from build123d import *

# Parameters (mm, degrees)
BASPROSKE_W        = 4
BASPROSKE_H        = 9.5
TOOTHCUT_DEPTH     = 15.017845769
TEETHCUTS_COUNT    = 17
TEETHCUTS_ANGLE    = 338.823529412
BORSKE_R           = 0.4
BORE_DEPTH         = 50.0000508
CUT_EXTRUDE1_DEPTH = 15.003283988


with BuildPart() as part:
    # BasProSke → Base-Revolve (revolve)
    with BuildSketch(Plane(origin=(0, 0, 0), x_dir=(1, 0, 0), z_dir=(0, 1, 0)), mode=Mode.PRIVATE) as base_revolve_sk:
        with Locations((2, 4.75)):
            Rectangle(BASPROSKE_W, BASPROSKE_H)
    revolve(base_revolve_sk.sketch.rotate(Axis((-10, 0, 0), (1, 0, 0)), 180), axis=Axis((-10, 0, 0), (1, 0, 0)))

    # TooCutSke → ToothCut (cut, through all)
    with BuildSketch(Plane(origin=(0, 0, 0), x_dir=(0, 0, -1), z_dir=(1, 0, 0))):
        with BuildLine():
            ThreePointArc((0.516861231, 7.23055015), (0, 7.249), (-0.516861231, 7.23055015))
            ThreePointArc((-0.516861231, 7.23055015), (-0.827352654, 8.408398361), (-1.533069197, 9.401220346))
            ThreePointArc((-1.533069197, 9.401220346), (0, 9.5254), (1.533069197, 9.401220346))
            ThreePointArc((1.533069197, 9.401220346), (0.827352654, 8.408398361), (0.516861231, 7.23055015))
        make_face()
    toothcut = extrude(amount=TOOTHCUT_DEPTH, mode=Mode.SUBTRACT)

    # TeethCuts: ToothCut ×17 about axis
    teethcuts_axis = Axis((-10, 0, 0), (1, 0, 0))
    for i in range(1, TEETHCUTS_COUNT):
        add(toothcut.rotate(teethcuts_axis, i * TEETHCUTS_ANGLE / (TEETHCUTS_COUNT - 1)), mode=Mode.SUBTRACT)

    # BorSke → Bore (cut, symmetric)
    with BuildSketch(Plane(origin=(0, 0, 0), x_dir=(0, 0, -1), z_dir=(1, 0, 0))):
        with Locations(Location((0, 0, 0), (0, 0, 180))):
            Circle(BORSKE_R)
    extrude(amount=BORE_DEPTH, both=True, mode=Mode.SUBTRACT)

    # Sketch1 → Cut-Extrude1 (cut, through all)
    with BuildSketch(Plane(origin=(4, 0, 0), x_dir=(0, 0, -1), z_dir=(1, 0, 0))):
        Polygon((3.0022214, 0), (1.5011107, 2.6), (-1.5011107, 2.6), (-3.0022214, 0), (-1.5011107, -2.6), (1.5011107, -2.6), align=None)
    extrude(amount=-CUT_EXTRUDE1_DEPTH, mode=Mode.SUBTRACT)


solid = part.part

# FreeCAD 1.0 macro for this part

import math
import FreeCAD as App
import Part
import Sketcher

V = App.Vector
Q = App.Units.Quantity


def add_polygon(sketch, points):
    """Adds a closed chain of lines whose ends are joined by coincident constraints."""
    first, n = sketch.GeometryCount, len(points)
    for a, b in zip(points, points[1:] + points[:1]):
        sketch.addGeometry(Part.LineSegment(App.Vector(*a, 0), App.Vector(*b, 0)), False)
    for i in range(n):
        sketch.addConstraint(Sketcher.Constraint("Coincident", first + i, 2, first + (i + 1) % n, 1))

doc = App.newDocument("Part")
body = doc.addObject("PartDesign::Body", "Body")

# Sketch on XZ plane
sketch1 = body.newObject("Sketcher::SketchObject", "Sketch")
sketch1.AttachmentSupport = (doc.getObject("XZ_Plane"), [""])
sketch1.MapMode = "FlatFace"
add_polygon(sketch1, [(0, -9.5), (0, 0), (4, 0), (4, -9.5)])  # lines 0-3
sketch1.addConstraint(Sketcher.Constraint("Vertical", 0))
sketch1.addConstraint(Sketcher.Constraint("Horizontal", 1))
sketch1.addConstraint(Sketcher.Constraint("Vertical", 2))
sketch1.addConstraint(Sketcher.Constraint("Horizontal", 3))
sketch1.addConstraint(Sketcher.Constraint("Coincident", 0, 2, -1, 1))
sketch1.addConstraint(Sketcher.Constraint("DistanceX", 1, 1, 1, 2, 4.0))
sketch1.addConstraint(Sketcher.Constraint("DistanceY", 0, 1, 0, 2, 9.5))
revolution = body.newObject("PartDesign::Revolution", "Revolution")
revolution.Profile = sketch1
revolution.ReferenceAxis = (sketch1, ["H_Axis"])
revolution.Angle = 360

# Sketch on YZ plane
sketch2 = body.newObject("Sketcher::SketchObject", "Sketch001")
sketch2.AttachmentSupport = (doc.getObject("YZ_Plane"), [""])
sketch2.MapMode = "FlatFace"
sketch2.addGeometry(Part.ArcOfCircle(Part.Circle(V(0, 0, 0), V(0, 0, 1), 7.2), math.radians(-4.09), math.radians(4.09)), False)
sketch2.addGeometry(Part.ArcOfCircle(Part.Circle(V(7, -3.9, 0), V(0, 0, 1), 3.4), math.radians(44), math.radians(86)), False)
sketch2.addGeometry(Part.ArcOfCircle(Part.Circle(V(0, 0, 0), V(0, 0, 1), 9.5), math.radians(-9.26), math.radians(9.26)), False)
sketch2.addGeometry(Part.ArcOfCircle(Part.Circle(V(7, 3.9, 0), V(0, 0, 1), 3.4), math.radians(-86), math.radians(-44)), False)
sketch2.addConstraint(Sketcher.Constraint("Coincident", 0, 1, 1, 2))
sketch2.addConstraint(Sketcher.Constraint("Coincident", 1, 1, 2, 1))
sketch2.addConstraint(Sketcher.Constraint("Coincident", 2, 2, 3, 2))
sketch2.addConstraint(Sketcher.Constraint("Coincident", 3, 1, 0, 2))
sketch2.addConstraint(Sketcher.Constraint("Coincident", 0, 3, -1, 1))
sketch2.addConstraint(Sketcher.Constraint("Coincident", 2, 3, -1, 1))
sketch2.addConstraint(Sketcher.Constraint("Equal", 1, 3))
sketch2.addConstraint(Sketcher.Constraint("Symmetric", 1, 3, 3, 3, -1))
sketch2.addConstraint(Sketcher.Constraint("Radius", 1, 3.4))
sketch2.addConstraint(Sketcher.Constraint("Radius", 0, 7.249))
sketch2.addConstraint(Sketcher.Constraint("Radius", 2, 9.5254))
sketch2.addConstraint(Sketcher.Constraint("DistanceX", -1, 1, 0, 1, 7.23055))
sketch2.addConstraint(Sketcher.Constraint("DistanceX", -1, 1, 1, 1, 9.40122))
pocket1 = body.newObject("PartDesign::Pocket", "Pocket")
pocket1.Profile = sketch2
pocket1.Type = "ThroughAll"
pocket1.Reversed = True
doc.recompute()

polarpattern = body.newObject("PartDesign::PolarPattern", "PolarPattern")
polarpattern.Originals = [pocket1]
polarpattern.Axis = (doc.getObject("X_Axis"), [""])
polarpattern.Angle = 360
polarpattern.Occurrences = 17
body.Tip = polarpattern

# Sketch on YZ plane
sketch3 = body.newObject("Sketcher::SketchObject", "Sketch002")
sketch3.AttachmentSupport = (doc.getObject("YZ_Plane"), [""])
sketch3.MapMode = "FlatFace"
sketch3.addGeometry(Part.Circle(V(0, 0, 0), V(0, 0, 1), 0.4), False)
sketch3.addConstraint(Sketcher.Constraint("Coincident", 0, 3, -1, 1))
sketch3.addConstraint(Sketcher.Constraint("Diameter", 0, 0.8))
pocket2 = body.newObject("PartDesign::Pocket", "Pocket001")
pocket2.Profile = sketch3
pocket2.Length = 100.000102
pocket2.Midplane = True

# Sketch on YZ plane
sketch4 = body.newObject("Sketcher::SketchObject", "Sketch003")
sketch4.AttachmentSupport = (doc.getObject("YZ_Plane"), [""])
sketch4.MapMode = "FlatFace"
sketch4.AttachmentOffset = App.Placement(V(0, 0, 4), App.Rotation())
add_polygon(sketch4, [(0, -3), (2.6, -1.5), (2.6, 1.5), (0, 3), (-2.6, 1.5), (-2.6, -1.5)])  # lines 0-5
sketch4.addConstraint(Sketcher.Constraint("Vertical", 1))
sketch4.addConstraint(Sketcher.Constraint("Vertical", 4))
sketch4.addConstraint(Sketcher.Constraint("Symmetric", 0, 2, 3, 2, -1, 1))
sketch4.addConstraint(Sketcher.Constraint("Symmetric", 2, 2, 5, 2, -1, 1))
sketch4.addConstraint(Sketcher.Constraint("PointOnObject", 2, 2, -2))
sketch4.addConstraint(Sketcher.Constraint("Parallel", 2, 5))
sketch4.addConstraint(Sketcher.Constraint("Horizontal", 1, 2, 3, 2))
sketch4.addConstraint(Sketcher.Constraint("Angle", 0, Q("30 deg")))
sketch4.addConstraint(Sketcher.Constraint("DistanceX", -1, 1, 0, 2, 2.6))
sketch4.addConstraint(Sketcher.Constraint("DistanceY", 1, 1, 1, 2, 3.002221))
pocket3 = body.newObject("PartDesign::Pocket", "Pocket002")
pocket3.Profile = sketch4
pocket3.Type = "ThroughAll"

doc.recompute()
